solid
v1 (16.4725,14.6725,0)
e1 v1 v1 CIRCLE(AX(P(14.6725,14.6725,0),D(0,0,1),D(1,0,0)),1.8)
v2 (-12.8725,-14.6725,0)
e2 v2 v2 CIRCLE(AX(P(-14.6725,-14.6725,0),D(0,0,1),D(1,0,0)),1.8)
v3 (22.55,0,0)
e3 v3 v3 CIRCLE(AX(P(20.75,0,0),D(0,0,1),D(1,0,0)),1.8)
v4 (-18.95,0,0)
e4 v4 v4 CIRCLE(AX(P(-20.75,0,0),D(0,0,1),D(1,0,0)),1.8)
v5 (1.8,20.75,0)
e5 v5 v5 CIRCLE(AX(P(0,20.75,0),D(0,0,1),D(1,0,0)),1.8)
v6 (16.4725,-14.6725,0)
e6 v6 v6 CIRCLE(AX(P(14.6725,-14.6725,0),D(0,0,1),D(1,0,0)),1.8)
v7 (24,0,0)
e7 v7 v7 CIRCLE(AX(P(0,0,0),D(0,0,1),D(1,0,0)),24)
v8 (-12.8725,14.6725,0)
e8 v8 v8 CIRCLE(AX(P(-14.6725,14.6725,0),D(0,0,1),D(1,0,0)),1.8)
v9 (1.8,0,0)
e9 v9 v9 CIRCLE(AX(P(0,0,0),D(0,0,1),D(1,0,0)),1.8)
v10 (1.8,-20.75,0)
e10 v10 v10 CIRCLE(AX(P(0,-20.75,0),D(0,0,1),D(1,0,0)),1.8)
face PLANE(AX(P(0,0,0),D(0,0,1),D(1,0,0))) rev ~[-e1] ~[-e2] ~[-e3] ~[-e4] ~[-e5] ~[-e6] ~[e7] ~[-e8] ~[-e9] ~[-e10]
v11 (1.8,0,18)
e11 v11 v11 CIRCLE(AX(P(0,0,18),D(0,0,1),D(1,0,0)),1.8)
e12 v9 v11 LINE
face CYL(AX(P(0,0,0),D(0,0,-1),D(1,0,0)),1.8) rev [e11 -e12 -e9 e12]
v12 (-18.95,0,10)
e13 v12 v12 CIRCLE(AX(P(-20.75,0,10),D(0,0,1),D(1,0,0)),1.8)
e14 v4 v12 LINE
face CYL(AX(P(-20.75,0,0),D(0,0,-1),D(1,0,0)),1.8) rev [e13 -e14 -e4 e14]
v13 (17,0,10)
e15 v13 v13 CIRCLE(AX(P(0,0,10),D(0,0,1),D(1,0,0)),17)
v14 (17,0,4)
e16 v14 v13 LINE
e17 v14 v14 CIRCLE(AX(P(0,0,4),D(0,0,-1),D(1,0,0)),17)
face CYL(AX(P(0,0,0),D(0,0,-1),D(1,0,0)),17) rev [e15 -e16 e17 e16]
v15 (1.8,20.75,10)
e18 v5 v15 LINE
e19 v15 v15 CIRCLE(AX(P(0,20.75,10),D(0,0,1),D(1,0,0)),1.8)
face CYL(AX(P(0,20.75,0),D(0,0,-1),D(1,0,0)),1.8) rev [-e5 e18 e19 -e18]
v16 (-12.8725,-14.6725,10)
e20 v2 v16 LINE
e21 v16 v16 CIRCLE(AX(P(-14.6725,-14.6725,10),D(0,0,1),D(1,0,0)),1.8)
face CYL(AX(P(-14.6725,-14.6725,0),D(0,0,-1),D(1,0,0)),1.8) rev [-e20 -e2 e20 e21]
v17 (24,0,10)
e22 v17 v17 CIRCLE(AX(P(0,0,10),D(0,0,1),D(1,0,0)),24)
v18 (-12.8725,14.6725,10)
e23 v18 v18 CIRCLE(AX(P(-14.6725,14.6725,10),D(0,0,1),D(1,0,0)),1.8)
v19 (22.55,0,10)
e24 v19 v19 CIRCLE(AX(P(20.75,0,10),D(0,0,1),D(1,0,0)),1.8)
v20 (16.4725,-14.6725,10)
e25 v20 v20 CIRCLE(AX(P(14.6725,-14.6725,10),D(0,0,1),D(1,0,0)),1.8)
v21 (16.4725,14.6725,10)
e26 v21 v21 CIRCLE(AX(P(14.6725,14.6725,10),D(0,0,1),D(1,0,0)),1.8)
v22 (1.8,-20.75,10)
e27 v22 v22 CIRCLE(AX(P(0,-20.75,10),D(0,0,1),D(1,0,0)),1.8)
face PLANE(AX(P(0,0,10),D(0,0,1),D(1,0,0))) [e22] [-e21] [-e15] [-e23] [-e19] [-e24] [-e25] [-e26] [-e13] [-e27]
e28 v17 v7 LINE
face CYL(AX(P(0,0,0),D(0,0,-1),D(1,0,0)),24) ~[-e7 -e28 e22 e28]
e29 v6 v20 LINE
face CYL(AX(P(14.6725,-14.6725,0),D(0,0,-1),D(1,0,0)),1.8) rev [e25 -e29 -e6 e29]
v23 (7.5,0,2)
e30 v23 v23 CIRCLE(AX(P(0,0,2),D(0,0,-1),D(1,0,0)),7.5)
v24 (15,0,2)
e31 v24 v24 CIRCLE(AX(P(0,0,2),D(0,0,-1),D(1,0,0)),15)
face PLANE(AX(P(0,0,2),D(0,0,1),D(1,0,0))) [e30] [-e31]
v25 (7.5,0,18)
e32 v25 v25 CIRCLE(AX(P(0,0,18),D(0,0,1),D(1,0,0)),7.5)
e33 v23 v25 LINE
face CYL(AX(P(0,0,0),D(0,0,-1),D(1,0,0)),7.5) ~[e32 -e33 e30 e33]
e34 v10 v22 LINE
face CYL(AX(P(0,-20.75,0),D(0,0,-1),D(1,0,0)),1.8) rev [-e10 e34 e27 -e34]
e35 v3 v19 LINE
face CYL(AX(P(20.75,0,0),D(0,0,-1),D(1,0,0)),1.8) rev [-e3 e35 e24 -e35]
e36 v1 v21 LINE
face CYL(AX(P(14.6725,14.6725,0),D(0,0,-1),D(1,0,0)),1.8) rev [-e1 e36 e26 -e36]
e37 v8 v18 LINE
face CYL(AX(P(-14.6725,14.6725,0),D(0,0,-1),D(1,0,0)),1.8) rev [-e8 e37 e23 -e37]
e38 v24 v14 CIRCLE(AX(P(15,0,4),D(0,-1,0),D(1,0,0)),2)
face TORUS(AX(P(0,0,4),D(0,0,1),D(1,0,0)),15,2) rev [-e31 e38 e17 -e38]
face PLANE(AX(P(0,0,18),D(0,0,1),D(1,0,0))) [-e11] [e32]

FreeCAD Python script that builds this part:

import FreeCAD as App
import Part
import Sketcher


def edges_at(feature, points):
    """Names of the edges that pass closest to the given points."""
    edges = feature.Shape.Edges
    near = lambda p: min(range(len(edges)), key=lambda i: edges[i].distToShape(Part.Vertex(*p))[0])
    return sorted({f"Edge{near(p) + 1}" for p in points})

doc = App.newDocument("Part")
body = doc.addObject("PartDesign::Body", "Body")

# Sketch on XY plane
sketch1 = body.newObject("Sketcher::SketchObject", "Sketch")
sketch1.AttachmentSupport = (doc.getObject("XY_Plane"), [""])
sketch1.MapMode = "FlatFace"
sketch1.addGeometry([
    Part.Circle(App.Vector(0, 0, 0), App.Vector(0, 0, 1), 24),  # 0
    Part.Circle(App.Vector(-14.6725, -14.6725, 0), App.Vector(0, 0, 1), 1.8),  # 1
    Part.Circle(App.Vector(0, -20.75, 0), App.Vector(0, 0, 1), 1.8),  # 2
    Part.Circle(App.Vector(14.6725, -14.6725, 0), App.Vector(0, 0, 1), 1.8),  # 3
    Part.Circle(App.Vector(-20.75, 0, 0), App.Vector(0, 0, 1), 1.8),  # 4
    Part.Circle(App.Vector(-14.6725, 14.6725, 0), App.Vector(0, 0, 1), 1.8),  # 5
    Part.Circle(App.Vector(14.6725, 14.6725, 0), App.Vector(0, 0, 1), 1.8),  # 6
    Part.Circle(App.Vector(20.75, 0, 0), App.Vector(0, 0, 1), 1.8),  # 7
    Part.Circle(App.Vector(0, 20.75, 0), App.Vector(0, 0, 1), 1.8),  # 8
    Part.Circle(App.Vector(0, 0, 0), App.Vector(0, 0, 1), 1.8),  # 9
], False)
sketch1.addConstraint([
    Sketcher.Constraint("Coincident", 0, 3, -1, 1),
    Sketcher.Constraint("Coincident", 9, 3, -1, 1),
    Sketcher.Constraint("Equal", 1, 2),
    Sketcher.Constraint("Equal", 2, 3),
    Sketcher.Constraint("Equal", 3, 4),
    Sketcher.Constraint("Equal", 4, 5),
    Sketcher.Constraint("Equal", 5, 6),
    Sketcher.Constraint("Equal", 6, 7),
    Sketcher.Constraint("Equal", 7, 8),
    Sketcher.Constraint("Equal", 8, 9),
    Sketcher.Constraint("Symmetric", 3, 3, 5, 3, -1, 1),
    Sketcher.Constraint("Symmetric", 1, 3, 6, 3, -1, 1),
    Sketcher.Constraint("Symmetric", 4, 3, 7, 3, -1, 1),
    Sketcher.Constraint("Symmetric", 2, 3, 8, 3, -1, 1),
    Sketcher.Constraint("Symmetric", 1, 3, 3, 3, -2),
    Sketcher.Constraint("PointOnObject", 2, 3, -2),
    Sketcher.Constraint("PointOnObject", 4, 3, -1),
    Sketcher.Constraint("Diameter", 0, 48.0),
    Sketcher.Constraint("Diameter", 1, 3.6),
    Sketcher.Constraint("DistanceY", 2, 3, -1, 1, 20.75),
    Sketcher.Constraint("DistanceX", 4, 3, -1, 1, 20.75),
    Sketcher.Constraint("DistanceX", 1, 3, 3, 3, 29.345),
    Sketcher.Constraint("DistanceY", 1, 3, 5, 3, 29.345),
])
pad1 = body.newObject("PartDesign::Pad", "Pad")
pad1.Profile = sketch1
pad1.Length = 2

# Sketch on XY plane
sketch2 = body.newObject("Sketcher::SketchObject", "Sketch001")
sketch2.AttachmentSupport = (doc.getObject("XY_Plane"), [""])
sketch2.MapMode = "FlatFace"
sketch2.addGeometry([
    Part.Circle(App.Vector(0, 0, 0), App.Vector(0, 0, 1), 24),  # 0
    Part.Circle(App.Vector(-14.6725, -14.6725, 0), App.Vector(0, 0, 1), 1.8),  # 1
    Part.Circle(App.Vector(0, -20.75, 0), App.Vector(0, 0, 1), 1.8),  # 2
    Part.Circle(App.Vector(14.6725, -14.6725, 0), App.Vector(0, 0, 1), 1.8),  # 3
    Part.Circle(App.Vector(-20.75, 0, 0), App.Vector(0, 0, 1), 1.8),  # 4
    Part.Circle(App.Vector(-14.6725, 14.6725, 0), App.Vector(0, 0, 1), 1.8),  # 5
    Part.Circle(App.Vector(0, 0, 0), App.Vector(0, 0, 1), 17),  # 6
    Part.Circle(App.Vector(20.75, 0, 0), App.Vector(0, 0, 1), 1.8),  # 7
    Part.Circle(App.Vector(0, 20.75, 0), App.Vector(0, 0, 1), 1.8),  # 8
    Part.Circle(App.Vector(14.6725, 14.6725, 0), App.Vector(0, 0, 1), 1.8),  # 9
], False)
sketch2.addConstraint([
    Sketcher.Constraint("Coincident", 0, 3, -1, 1),
    Sketcher.Constraint("Coincident", 6, 3, -1, 1),
    Sketcher.Constraint("Equal", 1, 2),
    Sketcher.Constraint("Equal", 2, 3),
    Sketcher.Constraint("Equal", 3, 4),
    Sketcher.Constraint("Equal", 4, 5),
    Sketcher.Constraint("Equal", 5, 7),
    Sketcher.Constraint("Equal", 7, 8),
    Sketcher.Constraint("Equal", 8, 9),
    Sketcher.Constraint("Symmetric", 3, 3, 5, 3, -1, 1),
    Sketcher.Constraint("Symmetric", 4, 3, 7, 3, -1, 1),
    Sketcher.Constraint("Symmetric", 2, 3, 8, 3, -1, 1),
    Sketcher.Constraint("Symmetric", 1, 3, 9, 3, -1, 1),
    Sketcher.Constraint("Symmetric", 1, 3, 3, 3, -2),
    Sketcher.Constraint("PointOnObject", 2, 3, -2),
    Sketcher.Constraint("PointOnObject", 4, 3, -1),
    Sketcher.Constraint("Diameter", 0, 48.0),
    Sketcher.Constraint("Diameter", 6, 34.0),
    Sketcher.Constraint("Diameter", 1, 3.6),
    Sketcher.Constraint("DistanceY", 2, 3, -1, 1, 20.75),
    Sketcher.Constraint("DistanceX", 4, 3, -1, 1, 20.75),
    Sketcher.Constraint("DistanceX", 1, 3, 3, 3, 29.345),
    Sketcher.Constraint("DistanceY", 1, 3, 5, 3, 29.345),
])
pad2 = body.newObject("PartDesign::Pad", "Pad001")
pad2.Profile = sketch2
pad2.Length = 10
doc.recompute()

fillet = body.newObject("PartDesign::Fillet", "Fillet")
fillet.Base = (pad2, edges_at(pad2, [(-17, 0, 2)]))
fillet.Radius = 2

# Sketch on XY plane
sketch3 = body.newObject("Sketcher::SketchObject", "Sketch002")
sketch3.AttachmentSupport = (doc.getObject("XY_Plane"), [""])
sketch3.MapMode = "FlatFace"
sketch3.addGeometry([
    Part.Circle(App.Vector(0, 0, 0), App.Vector(0, 0, 1), 7.5),
    Part.Circle(App.Vector(0, 0, 0), App.Vector(0, 0, 1), 1.8),
], False)
sketch3.addConstraint([
    Sketcher.Constraint("Coincident", 0, 3, -1, 1),
    Sketcher.Constraint("Coincident", 1, 3, -1, 1),
    Sketcher.Constraint("Diameter", 0, 15.0),
    Sketcher.Constraint("Diameter", 1, 3.6),
])
pad3 = body.newObject("PartDesign::Pad", "Pad002")
pad3.Profile = sketch3
pad3.Length = 18

doc.recompute()
